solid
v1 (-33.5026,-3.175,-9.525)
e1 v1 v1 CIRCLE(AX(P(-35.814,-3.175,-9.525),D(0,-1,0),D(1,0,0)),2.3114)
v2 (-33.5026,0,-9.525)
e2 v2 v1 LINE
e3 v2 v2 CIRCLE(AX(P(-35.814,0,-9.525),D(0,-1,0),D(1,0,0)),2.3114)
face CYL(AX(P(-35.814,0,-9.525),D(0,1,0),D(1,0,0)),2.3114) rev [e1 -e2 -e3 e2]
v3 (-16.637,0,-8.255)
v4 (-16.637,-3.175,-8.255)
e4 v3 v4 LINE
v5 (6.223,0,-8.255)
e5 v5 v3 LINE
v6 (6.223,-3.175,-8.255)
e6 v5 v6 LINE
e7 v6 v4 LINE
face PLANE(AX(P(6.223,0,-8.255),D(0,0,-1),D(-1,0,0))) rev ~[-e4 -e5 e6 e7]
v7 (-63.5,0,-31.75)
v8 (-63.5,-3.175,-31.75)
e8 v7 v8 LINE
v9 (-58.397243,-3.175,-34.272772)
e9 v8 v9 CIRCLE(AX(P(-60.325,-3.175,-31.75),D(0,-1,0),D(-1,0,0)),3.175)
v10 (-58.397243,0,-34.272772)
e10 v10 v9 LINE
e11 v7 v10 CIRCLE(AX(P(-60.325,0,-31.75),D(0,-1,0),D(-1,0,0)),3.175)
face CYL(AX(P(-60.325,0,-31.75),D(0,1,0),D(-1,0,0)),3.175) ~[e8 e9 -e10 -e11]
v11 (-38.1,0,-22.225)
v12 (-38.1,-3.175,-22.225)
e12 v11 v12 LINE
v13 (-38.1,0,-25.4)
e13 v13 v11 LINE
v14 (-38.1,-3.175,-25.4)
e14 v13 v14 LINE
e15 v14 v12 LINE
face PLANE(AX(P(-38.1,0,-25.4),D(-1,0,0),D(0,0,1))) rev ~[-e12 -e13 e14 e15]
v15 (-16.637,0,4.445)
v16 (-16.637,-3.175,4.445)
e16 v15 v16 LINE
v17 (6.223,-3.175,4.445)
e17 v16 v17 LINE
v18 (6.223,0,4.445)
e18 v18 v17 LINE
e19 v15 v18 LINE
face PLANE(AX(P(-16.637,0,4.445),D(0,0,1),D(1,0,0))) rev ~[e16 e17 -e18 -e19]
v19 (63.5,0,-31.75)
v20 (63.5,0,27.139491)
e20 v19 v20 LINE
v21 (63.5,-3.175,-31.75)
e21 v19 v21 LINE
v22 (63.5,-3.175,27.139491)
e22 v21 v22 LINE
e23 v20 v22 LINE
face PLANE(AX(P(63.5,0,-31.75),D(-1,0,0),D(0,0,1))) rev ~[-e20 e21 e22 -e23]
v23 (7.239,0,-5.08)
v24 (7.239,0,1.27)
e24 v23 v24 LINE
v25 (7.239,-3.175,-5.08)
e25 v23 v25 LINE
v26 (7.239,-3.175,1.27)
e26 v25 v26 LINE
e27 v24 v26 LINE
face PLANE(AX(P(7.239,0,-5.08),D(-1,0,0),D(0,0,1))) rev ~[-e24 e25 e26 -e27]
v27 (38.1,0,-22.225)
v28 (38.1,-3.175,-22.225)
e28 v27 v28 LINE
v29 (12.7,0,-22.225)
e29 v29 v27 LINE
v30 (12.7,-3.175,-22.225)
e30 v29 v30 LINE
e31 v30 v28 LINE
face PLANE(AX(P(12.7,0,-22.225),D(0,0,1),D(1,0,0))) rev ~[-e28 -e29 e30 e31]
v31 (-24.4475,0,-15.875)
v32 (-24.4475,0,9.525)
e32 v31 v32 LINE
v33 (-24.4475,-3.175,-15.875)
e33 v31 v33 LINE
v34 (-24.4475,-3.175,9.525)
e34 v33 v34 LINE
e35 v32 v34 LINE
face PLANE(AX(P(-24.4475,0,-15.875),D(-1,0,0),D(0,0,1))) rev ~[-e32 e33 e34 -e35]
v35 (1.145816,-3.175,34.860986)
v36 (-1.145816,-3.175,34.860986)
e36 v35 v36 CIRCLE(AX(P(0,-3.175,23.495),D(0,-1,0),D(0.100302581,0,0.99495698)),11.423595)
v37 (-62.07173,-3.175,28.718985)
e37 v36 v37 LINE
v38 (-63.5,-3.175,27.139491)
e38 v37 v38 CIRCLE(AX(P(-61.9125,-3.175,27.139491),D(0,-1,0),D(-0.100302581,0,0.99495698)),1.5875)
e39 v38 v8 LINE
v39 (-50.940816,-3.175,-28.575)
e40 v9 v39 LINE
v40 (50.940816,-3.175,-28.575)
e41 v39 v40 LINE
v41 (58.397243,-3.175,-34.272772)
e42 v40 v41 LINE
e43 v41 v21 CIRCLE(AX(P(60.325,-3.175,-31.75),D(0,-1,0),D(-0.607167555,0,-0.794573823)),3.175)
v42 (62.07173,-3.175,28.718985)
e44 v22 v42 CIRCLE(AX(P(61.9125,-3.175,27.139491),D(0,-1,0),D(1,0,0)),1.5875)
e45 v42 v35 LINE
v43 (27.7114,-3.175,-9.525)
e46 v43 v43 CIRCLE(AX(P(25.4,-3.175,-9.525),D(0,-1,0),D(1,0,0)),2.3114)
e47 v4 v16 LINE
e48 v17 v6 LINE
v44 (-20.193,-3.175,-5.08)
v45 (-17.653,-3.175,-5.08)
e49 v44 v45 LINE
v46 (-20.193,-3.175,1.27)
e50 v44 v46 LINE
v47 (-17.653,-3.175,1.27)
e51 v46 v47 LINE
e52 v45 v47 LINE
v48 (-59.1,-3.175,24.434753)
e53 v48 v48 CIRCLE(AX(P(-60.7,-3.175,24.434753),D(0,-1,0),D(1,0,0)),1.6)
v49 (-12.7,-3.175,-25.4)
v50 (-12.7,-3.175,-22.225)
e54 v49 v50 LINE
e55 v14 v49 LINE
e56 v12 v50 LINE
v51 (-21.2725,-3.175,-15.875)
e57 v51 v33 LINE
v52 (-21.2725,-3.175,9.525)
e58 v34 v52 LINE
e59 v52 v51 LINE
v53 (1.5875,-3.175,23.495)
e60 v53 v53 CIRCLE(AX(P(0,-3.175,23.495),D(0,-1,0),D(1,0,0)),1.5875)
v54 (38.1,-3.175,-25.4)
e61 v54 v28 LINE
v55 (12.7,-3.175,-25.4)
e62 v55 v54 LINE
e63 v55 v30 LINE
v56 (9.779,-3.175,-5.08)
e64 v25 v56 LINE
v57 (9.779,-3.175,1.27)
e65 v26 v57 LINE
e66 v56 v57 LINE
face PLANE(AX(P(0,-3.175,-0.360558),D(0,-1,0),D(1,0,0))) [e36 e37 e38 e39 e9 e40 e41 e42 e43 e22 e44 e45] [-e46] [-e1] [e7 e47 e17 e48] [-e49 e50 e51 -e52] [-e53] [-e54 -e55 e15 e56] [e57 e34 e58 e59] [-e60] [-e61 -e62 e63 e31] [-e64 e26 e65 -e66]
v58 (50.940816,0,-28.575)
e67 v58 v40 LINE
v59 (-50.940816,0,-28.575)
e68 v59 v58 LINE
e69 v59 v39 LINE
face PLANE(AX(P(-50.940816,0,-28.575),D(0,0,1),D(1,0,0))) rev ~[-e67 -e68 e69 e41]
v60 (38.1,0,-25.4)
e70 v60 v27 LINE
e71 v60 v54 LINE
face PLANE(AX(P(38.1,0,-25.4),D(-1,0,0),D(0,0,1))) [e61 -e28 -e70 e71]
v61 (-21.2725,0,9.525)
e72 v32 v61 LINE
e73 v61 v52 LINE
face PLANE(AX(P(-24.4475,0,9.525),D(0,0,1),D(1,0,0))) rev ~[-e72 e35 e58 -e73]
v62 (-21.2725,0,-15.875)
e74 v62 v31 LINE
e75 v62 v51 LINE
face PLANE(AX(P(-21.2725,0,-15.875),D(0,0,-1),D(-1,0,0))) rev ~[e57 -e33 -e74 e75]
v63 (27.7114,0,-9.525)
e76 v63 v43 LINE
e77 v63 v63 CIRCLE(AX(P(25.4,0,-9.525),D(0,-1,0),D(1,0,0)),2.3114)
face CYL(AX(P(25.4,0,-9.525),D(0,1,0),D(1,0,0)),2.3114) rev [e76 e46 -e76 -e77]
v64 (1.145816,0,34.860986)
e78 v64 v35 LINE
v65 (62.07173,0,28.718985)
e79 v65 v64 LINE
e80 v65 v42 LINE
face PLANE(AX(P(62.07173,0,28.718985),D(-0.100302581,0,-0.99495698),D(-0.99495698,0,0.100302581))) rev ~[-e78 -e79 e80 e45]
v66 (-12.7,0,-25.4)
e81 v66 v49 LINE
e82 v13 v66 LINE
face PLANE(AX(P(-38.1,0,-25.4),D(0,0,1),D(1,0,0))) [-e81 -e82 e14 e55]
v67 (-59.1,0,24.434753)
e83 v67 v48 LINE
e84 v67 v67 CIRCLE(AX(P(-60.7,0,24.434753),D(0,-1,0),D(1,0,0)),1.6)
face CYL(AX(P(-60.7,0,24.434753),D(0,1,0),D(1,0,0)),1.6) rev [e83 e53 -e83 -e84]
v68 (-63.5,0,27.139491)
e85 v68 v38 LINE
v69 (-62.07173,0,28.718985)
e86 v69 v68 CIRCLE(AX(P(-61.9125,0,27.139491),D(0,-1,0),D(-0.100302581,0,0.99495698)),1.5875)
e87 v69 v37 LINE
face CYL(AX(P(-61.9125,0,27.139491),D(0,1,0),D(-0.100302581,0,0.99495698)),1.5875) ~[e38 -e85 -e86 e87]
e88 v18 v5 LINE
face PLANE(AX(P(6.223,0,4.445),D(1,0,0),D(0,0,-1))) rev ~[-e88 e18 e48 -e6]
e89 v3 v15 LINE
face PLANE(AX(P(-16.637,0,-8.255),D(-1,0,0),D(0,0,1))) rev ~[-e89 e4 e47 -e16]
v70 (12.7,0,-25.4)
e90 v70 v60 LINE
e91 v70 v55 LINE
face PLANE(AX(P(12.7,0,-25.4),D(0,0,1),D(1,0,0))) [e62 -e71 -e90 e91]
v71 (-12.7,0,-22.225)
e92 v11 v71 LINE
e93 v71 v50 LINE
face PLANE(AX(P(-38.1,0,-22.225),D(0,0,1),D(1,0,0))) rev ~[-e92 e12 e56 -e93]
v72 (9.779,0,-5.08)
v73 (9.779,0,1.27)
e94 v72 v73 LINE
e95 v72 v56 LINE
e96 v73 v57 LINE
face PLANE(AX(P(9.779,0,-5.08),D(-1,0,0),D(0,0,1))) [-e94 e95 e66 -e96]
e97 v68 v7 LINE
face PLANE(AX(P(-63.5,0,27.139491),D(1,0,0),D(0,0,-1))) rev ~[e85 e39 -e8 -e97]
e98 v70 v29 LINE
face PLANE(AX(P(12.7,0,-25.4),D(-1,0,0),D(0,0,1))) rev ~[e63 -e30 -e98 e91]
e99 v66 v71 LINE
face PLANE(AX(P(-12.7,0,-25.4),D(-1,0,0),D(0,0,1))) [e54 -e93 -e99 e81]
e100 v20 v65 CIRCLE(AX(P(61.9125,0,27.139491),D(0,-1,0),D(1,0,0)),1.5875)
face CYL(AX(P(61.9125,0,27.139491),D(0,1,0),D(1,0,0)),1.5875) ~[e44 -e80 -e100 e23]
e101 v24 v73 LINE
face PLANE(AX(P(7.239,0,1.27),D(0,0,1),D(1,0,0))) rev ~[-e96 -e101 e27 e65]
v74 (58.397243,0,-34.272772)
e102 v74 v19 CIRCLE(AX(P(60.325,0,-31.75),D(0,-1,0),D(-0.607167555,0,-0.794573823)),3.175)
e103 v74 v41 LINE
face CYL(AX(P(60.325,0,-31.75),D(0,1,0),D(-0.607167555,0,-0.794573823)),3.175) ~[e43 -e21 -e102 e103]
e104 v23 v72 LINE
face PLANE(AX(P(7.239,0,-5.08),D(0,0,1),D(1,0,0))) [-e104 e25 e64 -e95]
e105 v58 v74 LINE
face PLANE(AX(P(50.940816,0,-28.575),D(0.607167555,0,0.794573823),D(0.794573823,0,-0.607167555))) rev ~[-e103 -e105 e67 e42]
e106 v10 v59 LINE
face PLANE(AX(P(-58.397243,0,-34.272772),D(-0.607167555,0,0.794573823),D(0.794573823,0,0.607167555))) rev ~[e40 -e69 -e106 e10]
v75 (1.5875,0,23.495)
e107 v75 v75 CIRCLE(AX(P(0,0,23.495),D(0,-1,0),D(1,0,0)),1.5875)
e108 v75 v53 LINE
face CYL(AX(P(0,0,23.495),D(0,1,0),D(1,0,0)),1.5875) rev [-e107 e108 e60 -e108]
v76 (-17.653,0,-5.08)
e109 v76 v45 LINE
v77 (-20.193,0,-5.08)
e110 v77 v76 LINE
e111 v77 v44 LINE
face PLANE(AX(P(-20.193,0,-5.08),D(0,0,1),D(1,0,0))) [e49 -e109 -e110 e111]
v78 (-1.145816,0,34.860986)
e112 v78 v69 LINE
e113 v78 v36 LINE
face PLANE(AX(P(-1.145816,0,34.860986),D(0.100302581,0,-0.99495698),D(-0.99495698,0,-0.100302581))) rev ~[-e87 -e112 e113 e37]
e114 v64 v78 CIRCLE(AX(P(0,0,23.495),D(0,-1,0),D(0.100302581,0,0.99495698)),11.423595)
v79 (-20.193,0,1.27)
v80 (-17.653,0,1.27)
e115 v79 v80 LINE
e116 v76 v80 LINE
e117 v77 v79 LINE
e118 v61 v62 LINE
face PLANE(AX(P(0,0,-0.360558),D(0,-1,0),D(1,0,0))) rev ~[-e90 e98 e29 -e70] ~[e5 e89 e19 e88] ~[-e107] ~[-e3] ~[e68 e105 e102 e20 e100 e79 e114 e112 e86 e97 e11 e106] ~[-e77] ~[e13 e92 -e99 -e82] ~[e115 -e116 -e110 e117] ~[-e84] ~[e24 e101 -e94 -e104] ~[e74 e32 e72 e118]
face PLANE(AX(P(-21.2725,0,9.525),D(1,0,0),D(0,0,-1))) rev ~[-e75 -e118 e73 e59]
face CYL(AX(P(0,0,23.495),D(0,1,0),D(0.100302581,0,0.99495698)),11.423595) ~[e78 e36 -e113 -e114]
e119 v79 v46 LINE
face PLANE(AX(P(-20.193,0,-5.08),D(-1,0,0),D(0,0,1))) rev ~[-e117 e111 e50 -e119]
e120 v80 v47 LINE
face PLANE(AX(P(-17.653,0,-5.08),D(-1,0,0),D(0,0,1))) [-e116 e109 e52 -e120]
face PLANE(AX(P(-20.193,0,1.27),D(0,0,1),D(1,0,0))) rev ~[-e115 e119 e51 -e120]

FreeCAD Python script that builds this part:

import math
import FreeCAD as App
import Part
import Sketcher
Q = App.Units.Quantity

doc = App.newDocument("Part")
body = doc.addObject("PartDesign::Body", "Body")

# Sketch on XZ plane
sketch1 = body.newObject("Sketcher::SketchObject", "Sketch")
sketch1.AttachmentSupport = (doc.getObject("XZ_Plane"), [""])
sketch1.MapMode = "FlatFace"
sketch1.addGeometry(Part.ArcOfCircle(Part.Circle(App.Vector(60.3, -31.8, 0), App.Vector(0, 0, 1), 3.2), math.radians(-127), math.radians(0)), False)
sketch1.addGeometry(Part.LineSegment(App.Vector(63.5, -31.8, 0), App.Vector(63.5, 27.1, 0)), False)
sketch1.addGeometry(Part.ArcOfCircle(Part.Circle(App.Vector(61.9, 27.1, 0), App.Vector(0, 0, 1), 1.6), math.radians(0), math.radians(84)), False)
sketch1.addGeometry(Part.LineSegment(App.Vector(62.1, 28.7, 0), App.Vector(1.1, 34.9, 0)), False)
sketch1.addGeometry(Part.ArcOfCircle(Part.Circle(App.Vector(0, 23.5, 0), App.Vector(0, 0, 1), 11.4), math.radians(84.24), math.radians(95.76)), False)
sketch1.addGeometry(Part.LineSegment(App.Vector(-1.1, 34.9, 0), App.Vector(-62.1, 28.7, 0)), False)
sketch1.addGeometry(Part.ArcOfCircle(Part.Circle(App.Vector(-61.9, 27.1, 0), App.Vector(0, 0, 1), 1.6), math.radians(96), math.radians(180)), False)
sketch1.addGeometry(Part.LineSegment(App.Vector(-63.5, 27.1, 0), App.Vector(-63.5, -31.8, 0)), False)
sketch1.addGeometry(Part.ArcOfCircle(Part.Circle(App.Vector(-60.3, -31.8, 0), App.Vector(0, 0, 1), 3.2), math.radians(180), math.radians(307)), False)
sketch1.addGeometry(Part.LineSegment(App.Vector(-58.4, -34.3, 0), App.Vector(-50.9, -28.6, 0)), False)
sketch1.addGeometry(Part.LineSegment(App.Vector(-50.9, -28.6, 0), App.Vector(50.9, -28.6, 0)), False)
sketch1.addGeometry(Part.LineSegment(App.Vector(50.9, -28.6, 0), App.Vector(58.4, -34.3, 0)), False)
sketch1.addGeometry(Part.LineSegment(App.Vector(-12.7, -25.4, 0), App.Vector(-38.1, -25.4, 0)), False)
sketch1.addGeometry(Part.LineSegment(App.Vector(-38.1, -25.4, 0), App.Vector(-38.1, -22.2, 0)), False)
sketch1.addGeometry(Part.LineSegment(App.Vector(-38.1, -22.2, 0), App.Vector(-12.7, -22.2, 0)), False)
sketch1.addGeometry(Part.LineSegment(App.Vector(-12.7, -22.2, 0), App.Vector(-12.7, -25.4, 0)), False)
sketch1.addGeometry(Part.Circle(App.Vector(-35.8, -9.5, 0), App.Vector(0, 0, 1), 2.3), False)
sketch1.addGeometry(Part.LineSegment(App.Vector(-21.3, 9.5, 0), App.Vector(-21.3, -15.9, 0)), False)
sketch1.addGeometry(Part.LineSegment(App.Vector(-21.3, -15.9, 0), App.Vector(-24.4, -15.9, 0)), False)
sketch1.addGeometry(Part.LineSegment(App.Vector(-24.4, -15.9, 0), App.Vector(-24.4, 9.5, 0)), False)
sketch1.addGeometry(Part.LineSegment(App.Vector(-24.4, 9.5, 0), App.Vector(-21.3, 9.5, 0)), False)
sketch1.addGeometry(Part.LineSegment(App.Vector(-17.7, -5.1, 0), App.Vector(-20.2, -5.1, 0)), False)
sketch1.addGeometry(Part.LineSegment(App.Vector(-20.2, -5.1, 0), App.Vector(-20.2, 1.3, 0)), False)
sketch1.addGeometry(Part.LineSegment(App.Vector(-20.2, 1.3, 0), App.Vector(-17.7, 1.3, 0)), False)
sketch1.addGeometry(Part.LineSegment(App.Vector(-17.7, 1.3, 0), App.Vector(-17.7, -5.1, 0)), False)
sketch1.addGeometry(Part.LineSegment(App.Vector(38.1, -25.4, 0), App.Vector(12.7, -25.4, 0)), False)
sketch1.addGeometry(Part.LineSegment(App.Vector(12.7, -25.4, 0), App.Vector(12.7, -22.2, 0)), False)
sketch1.addGeometry(Part.LineSegment(App.Vector(12.7, -22.2, 0), App.Vector(38.1, -22.2, 0)), False)
sketch1.addGeometry(Part.LineSegment(App.Vector(38.1, -22.2, 0), App.Vector(38.1, -25.4, 0)), False)
sketch1.addGeometry(Part.LineSegment(App.Vector(-16.6, 4.4, 0), App.Vector(6.2, 4.4, 0)), False)
sketch1.addGeometry(Part.LineSegment(App.Vector(6.2, 4.4, 0), App.Vector(6.2, -8.3, 0)), False)
sketch1.addGeometry(Part.LineSegment(App.Vector(6.2, -8.3, 0), App.Vector(-16.6, -8.3, 0)), False)
sketch1.addGeometry(Part.LineSegment(App.Vector(-16.6, -8.3, 0), App.Vector(-16.6, 4.4, 0)), False)
sketch1.addGeometry(Part.LineSegment(App.Vector(9.8, -5.1, 0), App.Vector(7.2, -5.1, 0)), False)
sketch1.addGeometry(Part.LineSegment(App.Vector(7.2, -5.1, 0), App.Vector(7.2, 1.3, 0)), False)
sketch1.addGeometry(Part.LineSegment(App.Vector(7.2, 1.3, 0), App.Vector(9.8, 1.3, 0)), False)
sketch1.addGeometry(Part.LineSegment(App.Vector(9.8, 1.3, 0), App.Vector(9.8, -5.1, 0)), False)
sketch1.addGeometry(Part.Circle(App.Vector(25.4, -9.5, 0), App.Vector(0, 0, 1), 2.3), False)
sketch1.addGeometry(Part.Circle(App.Vector(-60.7, 24.4, 0), App.Vector(0, 0, 1), 1.6), False)
sketch1.addGeometry(Part.Circle(App.Vector(0, 23.5, 0), App.Vector(0, 0, 1), 1.6), False)
sketch1.addConstraint(Sketcher.Constraint("Tangent", 0, 2, 1, 1))
sketch1.addConstraint(Sketcher.Constraint("Tangent", 1, 2, 2, 1))
sketch1.addConstraint(Sketcher.Constraint("Tangent", 2, 2, 3, 1))
sketch1.addConstraint(Sketcher.Constraint("Tangent", 3, 2, 4, 1))
sketch1.addConstraint(Sketcher.Constraint("Tangent", 4, 2, 5, 1))
sketch1.addConstraint(Sketcher.Constraint("Tangent", 5, 2, 6, 1))
sketch1.addConstraint(Sketcher.Constraint("Tangent", 6, 2, 7, 1))
sketch1.addConstraint(Sketcher.Constraint("Tangent", 7, 2, 8, 1))
sketch1.addConstraint(Sketcher.Constraint("Tangent", 8, 2, 9, 1))
sketch1.addConstraint(Sketcher.Constraint("Coincident", 9, 2, 10, 1))
sketch1.addConstraint(Sketcher.Constraint("Coincident", 10, 2, 11, 1))
sketch1.addConstraint(Sketcher.Constraint("Tangent", 11, 2, 0, 1))
sketch1.addConstraint(Sketcher.Constraint("Coincident", 12, 2, 13, 1))
sketch1.addConstraint(Sketcher.Constraint("Coincident", 13, 2, 14, 1))
sketch1.addConstraint(Sketcher.Constraint("Coincident", 14, 2, 15, 1))
sketch1.addConstraint(Sketcher.Constraint("Coincident", 15, 2, 12, 1))
sketch1.addConstraint(Sketcher.Constraint("Coincident", 17, 2, 18, 1))
sketch1.addConstraint(Sketcher.Constraint("Coincident", 18, 2, 19, 1))
sketch1.addConstraint(Sketcher.Constraint("Coincident", 19, 2, 20, 1))
sketch1.addConstraint(Sketcher.Constraint("Coincident", 20, 2, 17, 1))
sketch1.addConstraint(Sketcher.Constraint("Coincident", 21, 2, 22, 1))
sketch1.addConstraint(Sketcher.Constraint("Coincident", 22, 2, 23, 1))
sketch1.addConstraint(Sketcher.Constraint("Coincident", 23, 2, 24, 1))
sketch1.addConstraint(Sketcher.Constraint("Coincident", 24, 2, 21, 1))
sketch1.addConstraint(Sketcher.Constraint("Coincident", 25, 2, 26, 1))
sketch1.addConstraint(Sketcher.Constraint("Coincident", 26, 2, 27, 1))
sketch1.addConstraint(Sketcher.Constraint("Coincident", 27, 2, 28, 1))
sketch1.addConstraint(Sketcher.Constraint("Coincident", 28, 2, 25, 1))
sketch1.addConstraint(Sketcher.Constraint("Coincident", 29, 2, 30, 1))
sketch1.addConstraint(Sketcher.Constraint("Coincident", 30, 2, 31, 1))
sketch1.addConstraint(Sketcher.Constraint("Coincident", 31, 2, 32, 1))
sketch1.addConstraint(Sketcher.Constraint("Coincident", 32, 2, 29, 1))
sketch1.addConstraint(Sketcher.Constraint("Coincident", 33, 2, 34, 1))
sketch1.addConstraint(Sketcher.Constraint("Coincident", 34, 2, 35, 1))
sketch1.addConstraint(Sketcher.Constraint("Coincident", 35, 2, 36, 1))
sketch1.addConstraint(Sketcher.Constraint("Coincident", 36, 2, 33, 1))
sketch1.addConstraint(Sketcher.Constraint("Vertical", 1))
sketch1.addConstraint(Sketcher.Constraint("Vertical", 7))
sketch1.addConstraint(Sketcher.Constraint("Horizontal", 10))
sketch1.addConstraint(Sketcher.Constraint("Horizontal", 12))
sketch1.addConstraint(Sketcher.Constraint("Vertical", 13))
sketch1.addConstraint(Sketcher.Constraint("Horizontal", 14))
sketch1.addConstraint(Sketcher.Constraint("Vertical", 15))
sketch1.addConstraint(Sketcher.Constraint("Vertical", 17))
sketch1.addConstraint(Sketcher.Constraint("Horizontal", 18))
sketch1.addConstraint(Sketcher.Constraint("Vertical", 19))
sketch1.addConstraint(Sketcher.Constraint("Horizontal", 20))
sketch1.addConstraint(Sketcher.Constraint("Horizontal", 21))
sketch1.addConstraint(Sketcher.Constraint("Vertical", 22))
sketch1.addConstraint(Sketcher.Constraint("Horizontal", 23))
sketch1.addConstraint(Sketcher.Constraint("Vertical", 24))
sketch1.addConstraint(Sketcher.Constraint("Horizontal", 25))
sketch1.addConstraint(Sketcher.Constraint("Vertical", 26))
sketch1.addConstraint(Sketcher.Constraint("Horizontal", 27))
sketch1.addConstraint(Sketcher.Constraint("Vertical", 28))
sketch1.addConstraint(Sketcher.Constraint("Horizontal", 29))
sketch1.addConstraint(Sketcher.Constraint("Vertical", 30))
sketch1.addConstraint(Sketcher.Constraint("Horizontal", 31))
sketch1.addConstraint(Sketcher.Constraint("Vertical", 32))
sketch1.addConstraint(Sketcher.Constraint("Horizontal", 33))
sketch1.addConstraint(Sketcher.Constraint("Vertical", 34))
sketch1.addConstraint(Sketcher.Constraint("Horizontal", 35))
sketch1.addConstraint(Sketcher.Constraint("Vertical", 36))
sketch1.addConstraint(Sketcher.Constraint("Coincident", 39, 3, 4, 3))
sketch1.addConstraint(Sketcher.Constraint("Equal", 2, 6))
sketch1.addConstraint(Sketcher.Constraint("Equal", 0, 8))
sketch1.addConstraint(Sketcher.Constraint("Equal", 16, 37))
sketch1.addConstraint(Sketcher.Constraint("Equal", 6, 39))
sketch1.addConstraint(Sketcher.Constraint("Symmetric", 2, 3, 6, 3, -2))
sketch1.addConstraint(Sketcher.Constraint("Symmetric", 8, 2, 11, 2, -2))
sketch1.addConstraint(Sketcher.Constraint("Symmetric", 15, 2, 25, 2, -2))
sketch1.addConstraint(Sketcher.Constraint("Symmetric", 13, 2, 27, 2, -2))
sketch1.addConstraint(Sketcher.Constraint("PointOnObject", 4, 3, -2))
sketch1.addConstraint(Sketcher.Constraint("Horizontal", 16, 3, 37, 3))
sketch1.addConstraint(Sketcher.Constraint("Horizontal", 24, 2, 33, 2))
sketch1.addConstraint(Sketcher.Constraint("Horizontal", 23, 2, 34, 2))
sketch1.addConstraint(Sketcher.Constraint("Equal", 23, 33))
sketch1.addConstraint(Sketcher.Constraint("Equal", 20, 13))
sketch1.addConstraint(Sketcher.Constraint("Equal", 27, 17))
sketch1.addConstraint(Sketcher.Constraint("DistanceX", 12, 2, 12, 1, Q("1 in")))
sketch1.addConstraint(Sketcher.Constraint("Diameter", 16, Q("0.182 in")))
sketch1.addConstraint(Sketcher.Constraint("Diameter", 39, Q("0.125 in")))
sketch1.addConstraint(Sketcher.Constraint("DistanceX", 21, 2, 21, 1, Q("0.1 in")))
sketch1.addConstraint(Sketcher.Constraint("DistanceX", 29, 1, 29, 2, Q("0.9 in")))
sketch1.addConstraint(Sketcher.Constraint("DistanceY", 30, 2, 30, 1, Q("0.5 in")))
sketch1.addConstraint(Sketcher.Constraint("DistanceX", -1, 1, 37, 3, Q("1 in")))
sketch1.addConstraint(Sketcher.Constraint("DistanceY", 12, 2, -1, 1, Q("1 in")))
sketch1.addConstraint(Sketcher.Constraint("Radius", 0, Q("0.125 in")))
sketch1.addConstraint(Sketcher.Constraint("DistanceX", 7, 2, 12, 2, Q("1 in")))
sketch1.addConstraint(Sketcher.Constraint("DistanceX", 15, 2, 25, 2, Q("1 in")))
sketch1.addConstraint(Sketcher.Constraint("DistanceY", 22, 1, 22, 2, Q("0.25 in")))
sketch1.addConstraint(Sketcher.Constraint("DistanceY", 21, 2, -1, 1, Q("0.2 in")))
sketch1.addConstraint(Sketcher.Constraint("DistanceY", 16, 3, 4, 3, Q("1.3 in")))
sketch1.addConstraint(Sketcher.Constraint("DistanceY", 13, 2, 16, 3, Q("0.5 in")))
sketch1.addConstraint(Sketcher.Constraint("DistanceY", 17, 2, 31, 2, Q("0.3 in")))
sketch1.addConstraint(Sketcher.Constraint("Diameter", 38, 3.2))
sketch1.addConstraint(Sketcher.Constraint("DistanceX", 18, 2, 18, 1, Q("0.125 in")))
sketch1.addConstraint(Sketcher.Constraint("DistanceY", 0, 3, -1, 1, Q("1.25 in")))
sketch1.addConstraint(Sketcher.Constraint("DistanceX", 16, 3, -1, 1, Q("1.41 in")))
sketch1.addConstraint(Sketcher.Constraint("DistanceY", 9, 2, 16, 3, Q("0.75 in")))
sketch1.addConstraint(Sketcher.Constraint("DistanceY", 14, 2, 17, 2, Q("0.25 in")))
sketch1.addConstraint(Sketcher.Constraint("DistanceX", 23, 2, 29, 2, Q("0.94 in")))
sketch1.addConstraint(Sketcher.Constraint("DistanceX", 30, 2, 33, 2, Q("0.04 in")))
sketch1.addConstraint(Sketcher.Constraint("DistanceX", 21, 2, -1, 1, Q("0.795 in")))
sketch1.addConstraint(Sketcher.Constraint("DistanceX", 17, 2, -1, 1, Q("0.8375 in")))
sketch1.addConstraint(Sketcher.Constraint("Radius", 4, 11.423595))
sketch1.addConstraint(Sketcher.Constraint("DistanceY", 1, 1, 1, 2, 58.889491))
sketch1.addConstraint(Sketcher.Constraint("DistanceX", 38, 3, -1, 1, 60.7))
sketch1.addConstraint(Sketcher.Constraint("DistanceX", 10, 1, 10, 2, 101.881633))
sketch1.addConstraint(Sketcher.Constraint("DistanceY", 38, 3, 6, 3, 2.704738))
pad1 = body.newObject("PartDesign::Pad", "Pad")
pad1.Profile = sketch1
pad1.Length = Q("0.125 in")

doc.recompute()
